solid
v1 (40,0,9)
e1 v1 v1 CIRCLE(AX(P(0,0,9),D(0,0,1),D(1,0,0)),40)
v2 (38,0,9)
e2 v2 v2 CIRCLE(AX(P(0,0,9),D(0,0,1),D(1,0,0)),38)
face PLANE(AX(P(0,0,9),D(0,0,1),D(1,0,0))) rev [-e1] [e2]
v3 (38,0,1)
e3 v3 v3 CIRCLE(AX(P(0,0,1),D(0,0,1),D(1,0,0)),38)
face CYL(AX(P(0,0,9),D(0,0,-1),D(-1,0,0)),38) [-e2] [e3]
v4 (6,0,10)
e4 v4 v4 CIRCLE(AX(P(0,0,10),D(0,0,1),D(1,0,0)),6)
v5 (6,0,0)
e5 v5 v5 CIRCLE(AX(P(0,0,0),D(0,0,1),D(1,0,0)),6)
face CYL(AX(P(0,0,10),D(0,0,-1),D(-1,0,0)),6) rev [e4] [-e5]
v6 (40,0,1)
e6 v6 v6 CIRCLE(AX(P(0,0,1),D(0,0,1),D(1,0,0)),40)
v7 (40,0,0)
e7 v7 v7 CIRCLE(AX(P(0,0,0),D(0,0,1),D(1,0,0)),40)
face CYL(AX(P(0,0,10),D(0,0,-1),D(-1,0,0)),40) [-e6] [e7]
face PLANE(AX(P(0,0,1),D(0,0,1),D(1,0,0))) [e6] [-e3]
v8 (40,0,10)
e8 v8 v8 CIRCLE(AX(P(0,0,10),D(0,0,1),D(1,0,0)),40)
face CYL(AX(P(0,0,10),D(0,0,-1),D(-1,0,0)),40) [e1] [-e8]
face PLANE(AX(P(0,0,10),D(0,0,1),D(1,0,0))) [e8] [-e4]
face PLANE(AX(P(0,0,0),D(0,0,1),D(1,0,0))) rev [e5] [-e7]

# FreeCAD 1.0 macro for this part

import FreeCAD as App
import Part
import Sketcher
Q = App.Units.Quantity

doc = App.newDocument("Part")
body = doc.addObject("PartDesign::Body", "Body")

sketch1 = doc.addObject("Sketcher::SketchObject", "Sketch")
body.addObject(sketch1)
sketch1.AttachmentSupport = (doc.XY_Plane, [""])
sketch1.MapMode = "FlatFace"
sketch1.addGeometry([
    Part.Circle(App.Vector(0, 0, 0), App.Vector(0, 0, 1), 40),
    Part.Circle(App.Vector(0, 0, 0), App.Vector(0, 0, 1), 6),
], False)
sketch1.addConstraint([
    Sketcher.Constraint("Coincident", 0, 3, -1, 1),
    Sketcher.Constraint("Coincident", 1, 3, -1, 1),
    Sketcher.Constraint("Diameter", 0, Q("80 mm")),
    Sketcher.Constraint("Diameter", 1, Q("12 mm")),
])
pad1 = doc.addObject("PartDesign::Pad", "Pad")
body.addObject(pad1)
pad1.Profile = sketch1
pad1.Length = 10

sketch2 = doc.addObject("Sketcher::SketchObject", "Sketch001")
body.addObject(sketch2)
sketch2.AttachmentSupport = (doc.XY_Plane, [""])
sketch2.MapMode = "FlatFace"
sketch2.AttachmentOffset = App.Placement(App.Vector(0, 0, 1), App.Rotation())
sketch2.addGeometry([
    Part.Circle(App.Vector(0, 0, 0), App.Vector(0, 0, 1), 40),
    Part.Circle(App.Vector(0, 0, 0), App.Vector(0, 0, 1), 38),
], False)
sketch2.addConstraint([
    Sketcher.Constraint("Coincident", 0, 3, -1, 1),
    Sketcher.Constraint("Coincident", 1, 3, -1, 1),
    Sketcher.Constraint("Diameter", 0, Q("80 mm")),
    Sketcher.Constraint("Diameter", 1, Q("76 mm")),
])
pocket1 = doc.addObject("PartDesign::Pocket", "Pocket")
body.addObject(pocket1)
pocket1.Profile = sketch2
pocket1.Length = 8
pocket1.Reversed = True

doc.recompute()
